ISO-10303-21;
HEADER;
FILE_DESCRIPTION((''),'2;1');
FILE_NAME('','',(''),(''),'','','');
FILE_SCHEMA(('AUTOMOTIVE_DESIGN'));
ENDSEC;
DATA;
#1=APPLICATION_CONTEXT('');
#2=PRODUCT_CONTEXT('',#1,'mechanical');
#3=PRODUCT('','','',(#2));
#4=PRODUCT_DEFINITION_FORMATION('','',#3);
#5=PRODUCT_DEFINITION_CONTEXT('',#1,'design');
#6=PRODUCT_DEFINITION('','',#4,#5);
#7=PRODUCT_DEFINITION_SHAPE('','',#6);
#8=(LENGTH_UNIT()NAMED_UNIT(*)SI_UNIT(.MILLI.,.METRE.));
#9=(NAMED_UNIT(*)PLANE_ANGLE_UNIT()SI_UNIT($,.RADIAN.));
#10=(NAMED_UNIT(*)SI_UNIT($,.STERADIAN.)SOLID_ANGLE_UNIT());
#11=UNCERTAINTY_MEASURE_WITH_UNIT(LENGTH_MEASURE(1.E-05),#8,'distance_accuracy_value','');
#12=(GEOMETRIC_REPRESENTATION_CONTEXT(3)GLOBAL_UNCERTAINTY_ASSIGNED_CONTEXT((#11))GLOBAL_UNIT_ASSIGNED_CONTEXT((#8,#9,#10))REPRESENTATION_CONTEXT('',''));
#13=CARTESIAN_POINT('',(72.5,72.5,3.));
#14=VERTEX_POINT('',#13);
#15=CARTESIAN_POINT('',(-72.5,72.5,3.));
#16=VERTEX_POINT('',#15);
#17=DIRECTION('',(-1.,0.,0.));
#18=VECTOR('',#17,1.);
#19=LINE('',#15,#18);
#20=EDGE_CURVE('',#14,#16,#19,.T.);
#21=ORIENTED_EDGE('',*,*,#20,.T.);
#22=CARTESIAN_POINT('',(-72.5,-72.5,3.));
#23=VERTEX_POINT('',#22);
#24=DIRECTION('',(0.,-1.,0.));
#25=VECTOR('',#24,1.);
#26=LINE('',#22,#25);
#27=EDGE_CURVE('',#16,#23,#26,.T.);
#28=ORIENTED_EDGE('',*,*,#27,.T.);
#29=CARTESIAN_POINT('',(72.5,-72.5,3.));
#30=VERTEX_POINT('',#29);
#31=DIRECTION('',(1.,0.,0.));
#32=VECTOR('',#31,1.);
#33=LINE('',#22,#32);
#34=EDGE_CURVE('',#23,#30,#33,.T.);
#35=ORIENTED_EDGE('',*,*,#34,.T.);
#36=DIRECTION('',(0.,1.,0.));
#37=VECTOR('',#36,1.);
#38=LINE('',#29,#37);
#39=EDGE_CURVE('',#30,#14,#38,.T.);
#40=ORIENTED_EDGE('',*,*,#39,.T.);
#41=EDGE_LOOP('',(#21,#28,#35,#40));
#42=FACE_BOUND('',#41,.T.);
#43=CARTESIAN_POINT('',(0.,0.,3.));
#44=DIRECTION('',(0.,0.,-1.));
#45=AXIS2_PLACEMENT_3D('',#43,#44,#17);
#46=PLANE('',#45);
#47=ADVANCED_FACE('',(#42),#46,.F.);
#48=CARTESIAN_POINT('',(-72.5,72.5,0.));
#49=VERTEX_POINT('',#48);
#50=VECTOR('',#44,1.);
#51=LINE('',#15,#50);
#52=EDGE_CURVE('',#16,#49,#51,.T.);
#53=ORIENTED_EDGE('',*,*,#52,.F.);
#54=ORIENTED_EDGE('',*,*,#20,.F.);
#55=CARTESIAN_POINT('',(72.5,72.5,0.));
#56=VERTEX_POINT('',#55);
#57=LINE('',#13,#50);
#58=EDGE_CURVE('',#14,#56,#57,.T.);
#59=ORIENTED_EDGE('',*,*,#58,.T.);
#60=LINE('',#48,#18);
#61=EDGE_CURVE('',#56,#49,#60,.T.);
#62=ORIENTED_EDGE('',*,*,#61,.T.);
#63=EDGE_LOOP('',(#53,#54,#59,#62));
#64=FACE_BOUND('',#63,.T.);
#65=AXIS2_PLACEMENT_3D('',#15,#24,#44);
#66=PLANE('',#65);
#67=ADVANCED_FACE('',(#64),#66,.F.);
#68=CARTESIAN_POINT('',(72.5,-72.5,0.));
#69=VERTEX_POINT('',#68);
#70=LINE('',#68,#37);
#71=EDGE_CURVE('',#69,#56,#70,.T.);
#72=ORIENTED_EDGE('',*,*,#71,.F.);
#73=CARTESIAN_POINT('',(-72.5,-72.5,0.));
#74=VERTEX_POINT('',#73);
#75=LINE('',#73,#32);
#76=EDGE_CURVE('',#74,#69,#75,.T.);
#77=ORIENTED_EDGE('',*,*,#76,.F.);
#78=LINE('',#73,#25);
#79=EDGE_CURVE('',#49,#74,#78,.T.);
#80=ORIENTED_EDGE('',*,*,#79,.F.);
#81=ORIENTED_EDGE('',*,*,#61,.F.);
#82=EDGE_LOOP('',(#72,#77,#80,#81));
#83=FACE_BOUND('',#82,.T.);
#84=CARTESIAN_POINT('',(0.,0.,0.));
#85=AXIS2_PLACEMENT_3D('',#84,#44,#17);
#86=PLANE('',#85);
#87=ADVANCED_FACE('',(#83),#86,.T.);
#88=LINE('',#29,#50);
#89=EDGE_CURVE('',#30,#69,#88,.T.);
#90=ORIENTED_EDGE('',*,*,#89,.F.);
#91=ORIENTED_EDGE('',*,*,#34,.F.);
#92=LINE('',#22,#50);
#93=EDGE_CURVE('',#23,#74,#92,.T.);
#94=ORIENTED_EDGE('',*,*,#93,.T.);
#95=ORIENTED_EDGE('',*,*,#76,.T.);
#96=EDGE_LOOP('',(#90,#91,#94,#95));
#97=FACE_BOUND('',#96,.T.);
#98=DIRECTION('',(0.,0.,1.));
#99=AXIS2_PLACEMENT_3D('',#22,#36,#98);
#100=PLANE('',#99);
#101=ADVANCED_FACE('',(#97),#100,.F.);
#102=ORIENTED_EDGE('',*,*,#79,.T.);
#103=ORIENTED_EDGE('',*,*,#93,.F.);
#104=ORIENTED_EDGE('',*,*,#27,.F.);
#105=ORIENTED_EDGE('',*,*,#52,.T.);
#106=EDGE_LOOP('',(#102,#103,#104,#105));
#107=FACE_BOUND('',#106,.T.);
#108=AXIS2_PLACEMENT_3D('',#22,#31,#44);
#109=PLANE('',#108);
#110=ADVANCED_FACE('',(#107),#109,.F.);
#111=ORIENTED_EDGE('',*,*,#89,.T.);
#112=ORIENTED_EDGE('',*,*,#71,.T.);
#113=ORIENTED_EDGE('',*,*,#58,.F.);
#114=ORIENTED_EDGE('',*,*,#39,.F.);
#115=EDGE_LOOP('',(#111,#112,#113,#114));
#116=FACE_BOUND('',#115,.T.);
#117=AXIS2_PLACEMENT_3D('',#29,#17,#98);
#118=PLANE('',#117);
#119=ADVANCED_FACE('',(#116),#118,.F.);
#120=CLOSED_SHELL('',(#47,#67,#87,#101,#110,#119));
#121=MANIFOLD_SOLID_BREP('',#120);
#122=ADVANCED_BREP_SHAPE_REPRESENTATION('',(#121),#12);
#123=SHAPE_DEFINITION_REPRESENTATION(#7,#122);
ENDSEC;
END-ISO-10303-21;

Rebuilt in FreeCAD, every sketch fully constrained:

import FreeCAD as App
import Part
import Sketcher
Q = App.Units.Quantity


def add_polygon(sketch, points):
    """Adds a closed chain of lines whose ends are joined by coincident constraints."""
    first, n = sketch.GeometryCount, len(points)
    for a, b in zip(points, points[1:] + points[:1]):
        sketch.addGeometry(Part.LineSegment(App.Vector(*a, 0), App.Vector(*b, 0)), False)
    for i in range(n):
        sketch.addConstraint(Sketcher.Constraint("Coincident", first + i, 2, first + (i + 1) % n, 1))

doc = App.newDocument("Part")
body = doc.addObject("PartDesign::Body", "Body")

sketch1 = body.newObject("Sketcher::SketchObject", "Sketch")
sketch1.AttachmentSupport = (doc.getObject("XY_Plane"), [""])
sketch1.MapMode = "FlatFace"
add_polygon(sketch1, [(-72, 72), (-72, -72), (72, -72), (72, 72)])
sketch1.addConstraint([
    Sketcher.Constraint("Vertical", 0),
    Sketcher.Constraint("Horizontal", 1),
    Sketcher.Constraint("Vertical", 2),
    Sketcher.Constraint("Horizontal", 3),
    Sketcher.Constraint("Symmetric", 0, 2, 2, 2, -1, 1),
    Sketcher.Constraint("Equal", 3, 0),
    Sketcher.Constraint("DistanceX", 1, 1, 1, 2, Q("145 mm")),
])
pad1 = body.newObject("PartDesign::Pad", "Pad")
pad1.Profile = sketch1
pad1.Length = 3

doc.recompute()
